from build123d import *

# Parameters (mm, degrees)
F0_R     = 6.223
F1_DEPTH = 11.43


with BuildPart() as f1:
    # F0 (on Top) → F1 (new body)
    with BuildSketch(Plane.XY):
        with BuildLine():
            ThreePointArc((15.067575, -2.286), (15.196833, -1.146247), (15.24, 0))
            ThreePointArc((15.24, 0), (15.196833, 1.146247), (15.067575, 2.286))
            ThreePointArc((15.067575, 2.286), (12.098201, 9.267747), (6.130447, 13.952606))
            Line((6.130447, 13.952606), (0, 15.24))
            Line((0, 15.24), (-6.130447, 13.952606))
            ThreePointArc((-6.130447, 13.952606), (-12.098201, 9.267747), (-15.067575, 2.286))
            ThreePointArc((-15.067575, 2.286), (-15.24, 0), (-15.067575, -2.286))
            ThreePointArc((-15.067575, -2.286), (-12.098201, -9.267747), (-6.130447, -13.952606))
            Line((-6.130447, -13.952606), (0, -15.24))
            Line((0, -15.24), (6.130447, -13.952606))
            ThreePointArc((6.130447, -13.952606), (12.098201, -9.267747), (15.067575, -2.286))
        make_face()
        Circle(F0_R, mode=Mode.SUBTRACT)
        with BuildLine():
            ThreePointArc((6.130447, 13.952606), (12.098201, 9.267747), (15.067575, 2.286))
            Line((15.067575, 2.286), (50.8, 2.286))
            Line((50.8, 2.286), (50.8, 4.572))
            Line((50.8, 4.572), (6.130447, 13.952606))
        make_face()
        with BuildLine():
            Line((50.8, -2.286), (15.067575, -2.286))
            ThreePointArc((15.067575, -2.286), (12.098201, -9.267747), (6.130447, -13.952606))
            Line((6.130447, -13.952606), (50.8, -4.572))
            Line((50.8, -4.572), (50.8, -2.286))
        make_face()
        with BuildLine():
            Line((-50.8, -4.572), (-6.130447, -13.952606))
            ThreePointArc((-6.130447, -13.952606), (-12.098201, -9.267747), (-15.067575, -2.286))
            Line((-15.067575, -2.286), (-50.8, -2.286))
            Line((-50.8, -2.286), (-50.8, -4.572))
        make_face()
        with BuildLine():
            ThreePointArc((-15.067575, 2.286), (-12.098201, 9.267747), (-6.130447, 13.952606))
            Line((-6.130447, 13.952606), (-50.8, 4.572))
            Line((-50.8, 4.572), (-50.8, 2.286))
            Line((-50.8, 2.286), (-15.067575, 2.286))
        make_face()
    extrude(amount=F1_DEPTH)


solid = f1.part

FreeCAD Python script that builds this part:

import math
import FreeCAD as App
import Part
import Sketcher

V = App.Vector
Q = App.Units.Quantity

doc = App.newDocument("Part")
body = doc.addObject("PartDesign::Body", "Body")

sketch1 = body.newObject("Sketcher::SketchObject", "Sketch")
sketch1.AttachmentSupport = (doc.getObject("XY_Plane"), [""])
sketch1.MapMode = "FlatFace"
sketch1.addGeometry([
    Part.ArcOfCircle(Part.Circle(V(0.000106, -0.000011, 0), V(0, 0, 1), 15.239894), math.radians(-8.626946), math.radians(0.00004)),
    Part.ArcOfCircle(Part.Circle(V(0.000106, 0.000011, 0), V(0, 0, 1), 15.239894), math.radians(-0.00004), math.radians(8.626946)),
    Part.LineSegment(V(15.067575, 2.286, 0), V(50.8, 2.286, 0)),
    Part.LineSegment(V(50.8, 2.286, 0), V(50.8, 4.572, 0)),
    Part.LineSegment(V(50.8, 4.572, 0), V(6.130447, 13.952606, 0)),
    Part.LineSegment(V(6.130447, 13.952606, 0), V(0, 15.24, 0)),
    Part.LineSegment(V(0, 15.24, 0), V(-6.130447, 13.952606, 0)),
    Part.LineSegment(V(-6.130447, 13.952606, 0), V(-50.8, 4.572, 0)),
    Part.LineSegment(V(-50.8, 4.572, 0), V(-50.8, 2.286, 0)),
    Part.LineSegment(V(-50.8, 2.286, 0), V(-15.067575, 2.286, 0)),
    Part.ArcOfCircle(Part.Circle(V(0.000036, 0, 0), V(0, 0, 1), 15.240036), math.radians(171.373094), math.radians(188.626906)),
    Part.LineSegment(V(-15.067575, -2.286, 0), V(-50.8, -2.286, 0)),
    Part.LineSegment(V(-50.8, -2.286, 0), V(-50.8, -4.572, 0)),
    Part.LineSegment(V(-50.8, -4.572, 0), V(-6.130447, -13.952606, 0)),
    Part.LineSegment(V(-6.130447, -13.952606, 0), V(0, -15.24, 0)),
    Part.LineSegment(V(0, -15.24, 0), V(6.130447, -13.952606, 0)),
    Part.LineSegment(V(6.130447, -13.952606, 0), V(50.8, -4.572, 0)),
    Part.LineSegment(V(50.8, -4.572, 0), V(50.8, -2.286, 0)),
    Part.LineSegment(V(50.8, -2.286, 0), V(15.067575, -2.286, 0)),
    Part.Circle(V(0, 0, 0), V(0, 0, 1), 6.223),
], False)
sketch1.addConstraint([
    Sketcher.Constraint("Tangent", 0, 2, 1, 1),
    Sketcher.Constraint("Coincident", 1, 2, 2, 1),
    Sketcher.Constraint("Coincident", 2, 2, 3, 1),
    Sketcher.Constraint("Coincident", 3, 2, 4, 1),
    Sketcher.Constraint("Coincident", 4, 2, 5, 1),
    Sketcher.Constraint("Coincident", 5, 2, 6, 1),
    Sketcher.Constraint("Coincident", 6, 2, 7, 1),
    Sketcher.Constraint("Coincident", 7, 2, 8, 1),
    Sketcher.Constraint("Coincident", 8, 2, 9, 1),
    Sketcher.Constraint("Coincident", 9, 2, 10, 1),
    Sketcher.Constraint("Coincident", 10, 2, 11, 1),
    Sketcher.Constraint("Coincident", 11, 2, 12, 1),
    Sketcher.Constraint("Coincident", 12, 2, 13, 1),
    Sketcher.Constraint("Coincident", 13, 2, 14, 1),
    Sketcher.Constraint("Coincident", 14, 2, 15, 1),
    Sketcher.Constraint("Coincident", 15, 2, 16, 1),
    Sketcher.Constraint("Coincident", 16, 2, 17, 1),
    Sketcher.Constraint("Coincident", 17, 2, 18, 1),
    Sketcher.Constraint("Coincident", 18, 2, 0, 1),
    Sketcher.Constraint("Horizontal", 2),
    Sketcher.Constraint("Vertical", 3),
    Sketcher.Constraint("Vertical", 8),
    Sketcher.Constraint("Horizontal", 9),
    Sketcher.Constraint("Horizontal", 11),
    Sketcher.Constraint("Vertical", 12),
    Sketcher.Constraint("Vertical", 17),
    Sketcher.Constraint("Horizontal", 18),
    Sketcher.Constraint("Coincident", 19, 3, -1, 1),
    Sketcher.Constraint("Equal", 0, 1),
    Sketcher.Constraint("Symmetric", 1, 2, 10, 2, -1, 1),
    Sketcher.Constraint("Symmetric", 3, 2, 12, 2, -1, 1),
    Sketcher.Constraint("Symmetric", 4, 2, 13, 2, -1, 1),
    Sketcher.Constraint("Symmetric", 5, 2, 14, 2, -1, 1),
    Sketcher.Constraint("Symmetric", 6, 2, 15, 2, -1, 1),
    Sketcher.Constraint("Symmetric", 7, 2, 16, 2, -1, 1),
    Sketcher.Constraint("Symmetric", 9, 2, 18, 2, -1, 1),
    Sketcher.Constraint("Symmetric", 4, 2, 6, 2, -2),
    Sketcher.Constraint("Symmetric", 3, 2, 7, 2, -2),
    Sketcher.Constraint("Symmetric", 1, 2, 9, 2, -2),
    Sketcher.Constraint("PointOnObject", 0, 2, -1),
    Sketcher.Constraint("PointOnObject", 5, 2, -2),
    Sketcher.Constraint("Parallel", 4, 5),
    Sketcher.Constraint("Diameter", 19, Q("0.49 in")),
    Sketcher.Constraint("DistanceX", -1, 1, 2, 2, Q("2 in")),
    Sketcher.Constraint("DistanceY", 3, 1, 3, 2, Q("0.09 in")),
    Sketcher.Constraint("DistanceX", -1, 1, 0, 2, Q("0.6 in")),
    Sketcher.Constraint("DistanceY", -1, 1, 5, 2, Q("0.6 in")),
    Sketcher.Constraint("DistanceY", -1, 1, 1, 2, Q("0.09 in")),
    Sketcher.Constraint("Radius", 0, Q("15.239894 mm")),
    Sketcher.Constraint("Radius", 10, Q("15.240036 mm")),
    Sketcher.Constraint("Distance", 4, Q("45.64389 mm")),
])
pad1 = body.newObject("PartDesign::Pad", "Pad")
pad1.Profile = sketch1
pad1.Length = Q("0.45 in")

doc.recompute()
